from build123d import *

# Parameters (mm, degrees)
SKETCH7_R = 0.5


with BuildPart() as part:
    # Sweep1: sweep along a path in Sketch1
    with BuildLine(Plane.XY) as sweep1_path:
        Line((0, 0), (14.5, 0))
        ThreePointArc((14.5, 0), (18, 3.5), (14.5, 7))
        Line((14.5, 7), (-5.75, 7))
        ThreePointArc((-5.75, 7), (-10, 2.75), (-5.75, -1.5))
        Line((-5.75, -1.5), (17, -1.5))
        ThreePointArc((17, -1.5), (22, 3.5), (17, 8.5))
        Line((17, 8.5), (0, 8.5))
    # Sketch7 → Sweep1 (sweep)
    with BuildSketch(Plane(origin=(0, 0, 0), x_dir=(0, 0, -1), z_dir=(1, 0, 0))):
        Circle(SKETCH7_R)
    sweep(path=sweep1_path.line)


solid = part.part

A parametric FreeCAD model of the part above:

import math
import FreeCAD as App
import Part
import Sketcher

V = App.Vector
Q = App.Units.Quantity

doc = App.newDocument("Part")
body = doc.addObject("PartDesign::Body", "Body")

# Sketch on YZ plane
sketch1 = body.newObject("Sketcher::SketchObject", "Sketch")
sketch1.AttachmentSupport = (doc.getObject("YZ_Plane"), [""])
sketch1.MapMode = "FlatFace"
sketch1.addGeometry(Part.Circle(V(0, 0, 0), V(0, 0, 1), 0.5), False)
sketch1.addConstraint(Sketcher.Constraint("Coincident", 0, 3, -1, 1))
sketch1.addConstraint(Sketcher.Constraint("Diameter", 0, Q("1 mm")))

# Sketch on XY plane
sketch2 = body.newObject("Sketcher::SketchObject", "Sketch001")
sketch2.AttachmentSupport = (doc.getObject("XY_Plane"), [""])
sketch2.MapMode = "FlatFace"
sketch2.addGeometry(Part.LineSegment(V(0, 0, 0), V(14.5, 0, 0)), False)
sketch2.addGeometry(Part.ArcOfCircle(Part.Circle(V(14.5, 3.5, 0), V(0, 0, 1), 3.5), math.radians(-90), math.radians(90)), False)
sketch2.addGeometry(Part.LineSegment(V(14.5, 7, 0), V(-5.8, 7, 0)), False)
sketch2.addGeometry(Part.ArcOfCircle(Part.Circle(V(-5.8, 2.8, 0), V(0, 0, 1), 4.2), math.radians(90), math.radians(270)), False)
sketch2.addGeometry(Part.LineSegment(V(-5.8, -1.5, 0), V(17, -1.5, 0)), False)
sketch2.addGeometry(Part.ArcOfCircle(Part.Circle(V(17, 3.5, 0), V(0, 0, 1), 5), math.radians(-90), math.radians(90)), False)
sketch2.addGeometry(Part.LineSegment(V(17, 8.5, 0), V(0, 8.5, 0)), False)
sketch2.addConstraint(Sketcher.Constraint("Tangent", 0, 2, 1, 1))
sketch2.addConstraint(Sketcher.Constraint("Tangent", 1, 2, 2, 1))
sketch2.addConstraint(Sketcher.Constraint("Tangent", 2, 2, 3, 1))
sketch2.addConstraint(Sketcher.Constraint("Tangent", 3, 2, 4, 1))
sketch2.addConstraint(Sketcher.Constraint("Tangent", 4, 2, 5, 1))
sketch2.addConstraint(Sketcher.Constraint("Tangent", 5, 2, 6, 1))
sketch2.addConstraint(Sketcher.Constraint("Horizontal", 0))
sketch2.addConstraint(Sketcher.Constraint("Horizontal", 2))
sketch2.addConstraint(Sketcher.Constraint("Horizontal", 4))
sketch2.addConstraint(Sketcher.Constraint("Horizontal", 6))
sketch2.addConstraint(Sketcher.Constraint("Coincident", 0, 1, -1, 1))
sketch2.addConstraint(Sketcher.Constraint("PointOnObject", 6, 2, -2))
sketch2.addConstraint(Sketcher.Constraint("Horizontal", 1, 3, 5, 3))
sketch2.addConstraint(Sketcher.Constraint("Radius", 5, Q("5 mm")))
sketch2.addConstraint(Sketcher.Constraint("Radius", 1, Q("3.5 mm")))
sketch2.addConstraint(Sketcher.Constraint("DistanceX", 6, 2, 6, 1, Q("17 mm")))
sketch2.addConstraint(Sketcher.Constraint("DistanceX", 0, 1, 0, 2, Q("14.5 mm")))
sketch2.addConstraint(Sketcher.Constraint("DistanceX", 2, 2, 2, 1, Q("20.25 mm")))
doc.recompute()

additivepipe = body.newObject("PartDesign::AdditivePipe", "AdditivePipe")
additivepipe.Profile = sketch1
additivepipe.Spine = (sketch2, ["Edge1", "Edge2", "Edge3", "Edge4", "Edge5", "Edge6", "Edge7"])

doc.recompute()
